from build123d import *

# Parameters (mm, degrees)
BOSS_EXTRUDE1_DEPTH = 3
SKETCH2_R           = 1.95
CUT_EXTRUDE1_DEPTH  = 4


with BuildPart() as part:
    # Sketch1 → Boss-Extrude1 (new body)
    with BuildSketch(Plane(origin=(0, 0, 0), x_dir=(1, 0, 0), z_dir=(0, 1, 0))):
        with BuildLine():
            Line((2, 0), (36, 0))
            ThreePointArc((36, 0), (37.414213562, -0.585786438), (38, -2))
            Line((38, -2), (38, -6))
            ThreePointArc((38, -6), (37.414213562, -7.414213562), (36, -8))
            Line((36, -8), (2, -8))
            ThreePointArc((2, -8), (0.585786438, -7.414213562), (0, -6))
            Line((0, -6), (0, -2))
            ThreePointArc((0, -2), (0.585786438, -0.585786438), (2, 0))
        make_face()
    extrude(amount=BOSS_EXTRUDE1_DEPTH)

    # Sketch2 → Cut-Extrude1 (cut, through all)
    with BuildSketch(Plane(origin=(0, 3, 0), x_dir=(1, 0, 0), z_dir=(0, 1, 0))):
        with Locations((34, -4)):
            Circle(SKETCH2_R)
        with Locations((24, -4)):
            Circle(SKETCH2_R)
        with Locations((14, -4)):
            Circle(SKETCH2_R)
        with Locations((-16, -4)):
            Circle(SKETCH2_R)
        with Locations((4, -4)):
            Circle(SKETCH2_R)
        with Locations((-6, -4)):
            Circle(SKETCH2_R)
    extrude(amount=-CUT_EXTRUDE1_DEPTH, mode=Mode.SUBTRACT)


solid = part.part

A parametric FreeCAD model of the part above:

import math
import FreeCAD as App
import Part
import Sketcher

V = App.Vector
Q = App.Units.Quantity

doc = App.newDocument("Part")
body = doc.addObject("PartDesign::Body", "Body")

# Sketch on XZ plane
sketch1 = body.newObject("Sketcher::SketchObject", "Sketch")
sketch1.AttachmentSupport = (doc.getObject("XZ_Plane"), [""])
sketch1.MapMode = "FlatFace"
sketch1.addGeometry(Part.LineSegment(V(36, 0, 0), V(2, 0, 0)), False)
sketch1.addGeometry(Part.ArcOfCircle(Part.Circle(V(2, 2, 0), V(0, 0, 1), 2), math.radians(-180), math.radians(-90)), False)
sketch1.addGeometry(Part.LineSegment(V(0, 2, 0), V(0, 6, 0)), False)
sketch1.addGeometry(Part.ArcOfCircle(Part.Circle(V(2, 6, 0), V(0, 0, 1), 2), math.radians(90), math.radians(180)), False)
sketch1.addGeometry(Part.LineSegment(V(2, 8, 0), V(36, 8, 0)), False)
sketch1.addGeometry(Part.ArcOfCircle(Part.Circle(V(36, 6, 0), V(0, 0, 1), 2), math.radians(0), math.radians(90)), False)
sketch1.addGeometry(Part.LineSegment(V(38, 6, 0), V(38, 2, 0)), False)
sketch1.addGeometry(Part.ArcOfCircle(Part.Circle(V(36, 2, 0), V(0, 0, 1), 2), math.radians(-90), math.radians(0)), False)
sketch1.addConstraint(Sketcher.Constraint("Tangent", 0, 2, 1, 2))
sketch1.addConstraint(Sketcher.Constraint("Tangent", 1, 1, 2, 1))
sketch1.addConstraint(Sketcher.Constraint("Tangent", 2, 2, 3, 2))
sketch1.addConstraint(Sketcher.Constraint("Tangent", 3, 1, 4, 1))
sketch1.addConstraint(Sketcher.Constraint("Tangent", 4, 2, 5, 2))
sketch1.addConstraint(Sketcher.Constraint("Tangent", 5, 1, 6, 1))
sketch1.addConstraint(Sketcher.Constraint("Tangent", 6, 2, 7, 2))
sketch1.addConstraint(Sketcher.Constraint("Tangent", 7, 1, 0, 1))
sketch1.addConstraint(Sketcher.Constraint("Horizontal", 0))
sketch1.addConstraint(Sketcher.Constraint("Vertical", 2))
sketch1.addConstraint(Sketcher.Constraint("Horizontal", 4))
sketch1.addConstraint(Sketcher.Constraint("Vertical", 6))
sketch1.addConstraint(Sketcher.Constraint("Equal", 1, 3))
sketch1.addConstraint(Sketcher.Constraint("Equal", 3, 5))
sketch1.addConstraint(Sketcher.Constraint("Equal", 5, 7))
sketch1.addConstraint(Sketcher.Constraint("PointOnObject", 0, 2, -1))
sketch1.addConstraint(Sketcher.Constraint("PointOnObject", 1, 1, -2))
sketch1.addConstraint(Sketcher.Constraint("Radius", 1, Q("2 mm")))
sketch1.addConstraint(Sketcher.Constraint("DistanceX", 0, 2, 0, 1, Q("34 mm")))
sketch1.addConstraint(Sketcher.Constraint("DistanceY", 2, 1, 2, 2, Q("4 mm")))
pad1 = body.newObject("PartDesign::Pad", "Pad")
pad1.Profile = sketch1
pad1.Length = 3
pad1.Reversed = True

# Sketch on XZ plane
sketch2 = body.newObject("Sketcher::SketchObject", "Sketch001")
sketch2.AttachmentSupport = (doc.getObject("XZ_Plane"), [""])
sketch2.MapMode = "FlatFace"
sketch2.AttachmentOffset = App.Placement(V(0, 0, -3), App.Rotation())
sketch2.addGeometry(Part.Circle(V(34, 4, 0), V(0, 0, 1), 1.9), False)
sketch2.addGeometry(Part.Circle(V(24, 4, 0), V(0, 0, 1), 1.9), False)
sketch2.addGeometry(Part.Circle(V(14, 4, 0), V(0, 0, 1), 1.9), False)
sketch2.addGeometry(Part.Circle(V(-16, 4, 0), V(0, 0, 1), 1.9), False)
sketch2.addGeometry(Part.Circle(V(4, 4, 0), V(0, 0, 1), 1.9), False)
sketch2.addGeometry(Part.Circle(V(-6, 4, 0), V(0, 0, 1), 1.9), False)
sketch2.addConstraint(Sketcher.Constraint("Equal", 0, 1))
sketch2.addConstraint(Sketcher.Constraint("Equal", 1, 2))
sketch2.addConstraint(Sketcher.Constraint("Equal", 2, 3))
sketch2.addConstraint(Sketcher.Constraint("Equal", 3, 4))
sketch2.addConstraint(Sketcher.Constraint("Equal", 4, 5))
sketch2.addConstraint(Sketcher.Constraint("Horizontal", 0, 3, 1, 3))
sketch2.addConstraint(Sketcher.Constraint("Horizontal", 1, 3, 2, 3))
sketch2.addConstraint(Sketcher.Constraint("Horizontal", 2, 3, 3, 3))
sketch2.addConstraint(Sketcher.Constraint("Horizontal", 3, 3, 4, 3))
sketch2.addConstraint(Sketcher.Constraint("Horizontal", 4, 3, 5, 3))
sketch2.addConstraint(Sketcher.Constraint("Diameter", 0, Q("3.9 mm")))
sketch2.addConstraint(Sketcher.Constraint("DistanceX", -1, 1, 0, 3, Q("34 mm")))
sketch2.addConstraint(Sketcher.Constraint("DistanceY", -1, 1, 0, 3, Q("4 mm")))
sketch2.addConstraint(Sketcher.Constraint("DistanceX", -1, 1, 1, 3, Q("24 mm")))
sketch2.addConstraint(Sketcher.Constraint("DistanceX", -1, 1, 2, 3, Q("14 mm")))
sketch2.addConstraint(Sketcher.Constraint("DistanceX", 3, 3, -1, 1, Q("16 mm")))
sketch2.addConstraint(Sketcher.Constraint("DistanceX", -1, 1, 4, 3, Q("4 mm")))
sketch2.addConstraint(Sketcher.Constraint("DistanceX", 5, 3, -1, 1, Q("6 mm")))
pocket1 = body.newObject("PartDesign::Pocket", "Pocket")
pocket1.Profile = sketch2
pocket1.Type = "ThroughAll"
pocket1.Reversed = True

doc.recompute()
